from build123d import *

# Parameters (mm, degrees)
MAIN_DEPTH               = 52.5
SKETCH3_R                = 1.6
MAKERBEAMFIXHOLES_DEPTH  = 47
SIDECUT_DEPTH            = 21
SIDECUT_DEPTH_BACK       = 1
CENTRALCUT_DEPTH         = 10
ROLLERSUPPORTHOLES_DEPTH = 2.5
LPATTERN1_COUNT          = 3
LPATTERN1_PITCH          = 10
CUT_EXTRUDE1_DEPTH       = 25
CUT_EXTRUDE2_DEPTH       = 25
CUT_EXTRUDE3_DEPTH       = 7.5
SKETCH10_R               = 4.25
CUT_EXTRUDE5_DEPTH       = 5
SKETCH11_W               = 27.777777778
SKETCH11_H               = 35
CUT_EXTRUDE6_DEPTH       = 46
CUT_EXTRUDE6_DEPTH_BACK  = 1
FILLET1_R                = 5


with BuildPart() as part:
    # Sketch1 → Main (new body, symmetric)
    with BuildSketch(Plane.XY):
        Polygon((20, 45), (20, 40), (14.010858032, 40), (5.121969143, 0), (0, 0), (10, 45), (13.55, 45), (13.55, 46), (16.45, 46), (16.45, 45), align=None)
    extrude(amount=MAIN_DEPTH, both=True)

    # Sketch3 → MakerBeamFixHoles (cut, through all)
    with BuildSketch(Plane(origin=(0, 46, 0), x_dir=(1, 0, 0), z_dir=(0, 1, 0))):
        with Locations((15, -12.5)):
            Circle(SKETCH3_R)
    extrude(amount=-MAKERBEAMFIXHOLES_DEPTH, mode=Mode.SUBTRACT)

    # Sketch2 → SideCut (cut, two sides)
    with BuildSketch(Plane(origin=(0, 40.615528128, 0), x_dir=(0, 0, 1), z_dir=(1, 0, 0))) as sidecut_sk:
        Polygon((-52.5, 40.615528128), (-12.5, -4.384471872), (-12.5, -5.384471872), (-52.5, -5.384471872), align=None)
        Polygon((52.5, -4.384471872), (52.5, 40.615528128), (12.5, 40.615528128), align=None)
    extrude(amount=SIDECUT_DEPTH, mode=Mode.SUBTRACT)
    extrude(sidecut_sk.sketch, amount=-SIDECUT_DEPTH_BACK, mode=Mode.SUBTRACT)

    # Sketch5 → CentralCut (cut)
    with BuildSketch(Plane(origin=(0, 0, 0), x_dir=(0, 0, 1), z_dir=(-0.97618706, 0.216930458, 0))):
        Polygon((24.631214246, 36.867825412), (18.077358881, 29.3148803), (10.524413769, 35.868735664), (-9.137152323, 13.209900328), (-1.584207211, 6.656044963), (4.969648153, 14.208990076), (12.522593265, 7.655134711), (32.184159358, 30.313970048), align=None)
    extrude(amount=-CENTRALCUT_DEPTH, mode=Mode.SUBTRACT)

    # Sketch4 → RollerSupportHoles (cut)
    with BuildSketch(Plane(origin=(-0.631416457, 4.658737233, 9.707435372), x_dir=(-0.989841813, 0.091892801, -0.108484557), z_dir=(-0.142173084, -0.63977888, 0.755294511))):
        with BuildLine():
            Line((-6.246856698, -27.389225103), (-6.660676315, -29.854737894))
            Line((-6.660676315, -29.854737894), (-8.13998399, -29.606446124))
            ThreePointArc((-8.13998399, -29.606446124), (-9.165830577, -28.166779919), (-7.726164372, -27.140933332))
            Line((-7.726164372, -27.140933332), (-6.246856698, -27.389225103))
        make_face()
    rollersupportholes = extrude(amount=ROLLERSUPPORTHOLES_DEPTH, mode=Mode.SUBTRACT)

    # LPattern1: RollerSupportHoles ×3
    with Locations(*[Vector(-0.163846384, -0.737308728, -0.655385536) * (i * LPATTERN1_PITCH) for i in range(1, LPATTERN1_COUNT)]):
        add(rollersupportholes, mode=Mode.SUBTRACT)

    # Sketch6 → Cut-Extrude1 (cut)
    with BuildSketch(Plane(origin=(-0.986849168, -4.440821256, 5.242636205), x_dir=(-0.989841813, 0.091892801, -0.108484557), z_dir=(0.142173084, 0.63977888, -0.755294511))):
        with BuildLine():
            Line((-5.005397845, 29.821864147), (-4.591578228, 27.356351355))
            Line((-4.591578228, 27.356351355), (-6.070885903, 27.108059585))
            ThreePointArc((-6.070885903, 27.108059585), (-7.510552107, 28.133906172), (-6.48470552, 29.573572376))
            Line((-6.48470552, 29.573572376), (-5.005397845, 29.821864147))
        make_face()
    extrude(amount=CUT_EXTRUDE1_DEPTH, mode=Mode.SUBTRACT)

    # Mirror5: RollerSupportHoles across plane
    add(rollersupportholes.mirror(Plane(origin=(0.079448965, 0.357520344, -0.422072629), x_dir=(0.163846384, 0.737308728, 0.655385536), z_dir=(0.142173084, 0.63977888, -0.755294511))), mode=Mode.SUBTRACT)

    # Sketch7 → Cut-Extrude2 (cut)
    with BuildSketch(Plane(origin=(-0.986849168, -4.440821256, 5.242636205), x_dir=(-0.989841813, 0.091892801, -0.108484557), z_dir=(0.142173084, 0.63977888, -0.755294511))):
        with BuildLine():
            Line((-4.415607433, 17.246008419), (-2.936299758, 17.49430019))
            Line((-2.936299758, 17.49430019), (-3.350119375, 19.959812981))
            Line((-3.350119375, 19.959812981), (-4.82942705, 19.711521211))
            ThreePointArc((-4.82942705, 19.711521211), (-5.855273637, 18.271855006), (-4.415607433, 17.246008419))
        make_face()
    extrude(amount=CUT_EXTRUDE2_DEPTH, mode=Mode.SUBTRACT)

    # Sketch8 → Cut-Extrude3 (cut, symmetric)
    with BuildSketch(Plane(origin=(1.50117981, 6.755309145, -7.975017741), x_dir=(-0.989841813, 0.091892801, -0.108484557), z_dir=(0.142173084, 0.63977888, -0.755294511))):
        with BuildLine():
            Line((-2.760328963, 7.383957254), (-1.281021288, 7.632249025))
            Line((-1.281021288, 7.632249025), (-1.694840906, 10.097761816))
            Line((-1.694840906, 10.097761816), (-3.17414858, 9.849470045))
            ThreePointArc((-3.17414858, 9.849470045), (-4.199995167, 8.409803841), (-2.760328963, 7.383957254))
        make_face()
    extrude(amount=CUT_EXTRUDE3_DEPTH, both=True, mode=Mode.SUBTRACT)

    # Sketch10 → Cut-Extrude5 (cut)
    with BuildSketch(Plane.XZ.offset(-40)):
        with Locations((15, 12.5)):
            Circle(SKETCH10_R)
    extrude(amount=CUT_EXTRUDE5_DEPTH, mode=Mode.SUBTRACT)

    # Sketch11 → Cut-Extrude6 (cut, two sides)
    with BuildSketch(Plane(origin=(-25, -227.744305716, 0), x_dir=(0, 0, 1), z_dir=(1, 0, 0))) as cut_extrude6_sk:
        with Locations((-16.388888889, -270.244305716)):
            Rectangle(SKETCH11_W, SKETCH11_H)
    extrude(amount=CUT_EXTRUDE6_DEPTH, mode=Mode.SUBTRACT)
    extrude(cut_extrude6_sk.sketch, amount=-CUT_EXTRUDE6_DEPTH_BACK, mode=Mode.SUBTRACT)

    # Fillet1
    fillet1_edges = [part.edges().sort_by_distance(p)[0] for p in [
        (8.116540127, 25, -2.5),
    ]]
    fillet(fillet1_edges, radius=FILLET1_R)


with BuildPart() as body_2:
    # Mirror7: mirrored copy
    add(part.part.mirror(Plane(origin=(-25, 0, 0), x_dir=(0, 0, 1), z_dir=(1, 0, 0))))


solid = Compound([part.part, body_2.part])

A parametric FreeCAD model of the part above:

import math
import FreeCAD as App
import Part
import Sketcher
from FreeCAD import Vector


def edges_at(feature, points):
    """Names of the edges that pass closest to the given points."""
    edges = feature.Shape.Edges
    near = lambda p: min(range(len(edges)), key=lambda i: edges[i].distToShape(Part.Vertex(*p))[0])
    return sorted({f"Edge{near(p) + 1}" for p in points})


def add_polygon(sketch, points):
    """Adds a closed chain of lines whose ends are joined by coincident constraints."""
    first, n = sketch.GeometryCount, len(points)
    for a, b in zip(points, points[1:] + points[:1]):
        sketch.addGeometry(Part.LineSegment(App.Vector(*a, 0), App.Vector(*b, 0)), False)
    for i in range(n):
        sketch.addConstraint(Sketcher.Constraint("Coincident", first + i, 2, first + (i + 1) % n, 1))

doc = App.newDocument("Part")
body = doc.addObject("PartDesign::Body", "Body")

# Sketch on XY plane
sketch1 = body.newObject("Sketcher::SketchObject", "Sketch")
sketch1.AttachmentSupport = (doc.getObject("XY_Plane"), [""])
sketch1.MapMode = "FlatFace"
add_polygon(sketch1, [(20, 40), (20, 45), (16.4, 45), (16.4, 46), (13.6, 46), (13.6, 45), (10, 45), (0, 0), (5.1, 0), (14, 40)])  # lines 0-9
sketch1.addConstraint([
    Sketcher.Constraint("Vertical", 0),
    Sketcher.Constraint("Horizontal", 1),
    Sketcher.Constraint("Vertical", 2),
    Sketcher.Constraint("Horizontal", 3),
    Sketcher.Constraint("Vertical", 4),
    Sketcher.Constraint("Horizontal", 5),
    Sketcher.Constraint("Horizontal", 7),
    Sketcher.Constraint("Horizontal", 9),
    Sketcher.Constraint("Coincident", 6, 2, -1, 1),
    Sketcher.Constraint("Parallel", 6, 8),
    Sketcher.Constraint("Horizontal", 1, 2, 4, 2),
    Sketcher.Constraint("Equal", 1, 5),
    Sketcher.Constraint("DistanceY", 0, 1, 0, 2, 5.0),
    Sketcher.Constraint("DistanceY", 2, 1, 2, 2, 1.0),
    Sketcher.Constraint("DistanceX", 3, 2, 3, 1, 2.9),
    Sketcher.Constraint("DistanceX", -1, 1, 0, 2, 20.0),
    Sketcher.Constraint("DistanceY", -1, 1, 0, 2, 45.0),
    Sketcher.Constraint("DistanceX", -1, 1, 5, 2, 10.0),
    Sketcher.Constraint("DistanceX", 7, 1, 7, 2, 5.121969),
])
pad1 = body.newObject("PartDesign::Pad", "Pad")
pad1.Profile = sketch1
pad1.Length = 105
pad1.Midplane = True

# Sketch on XZ plane
sketch2 = body.newObject("Sketcher::SketchObject", "Sketch001")
sketch2.AttachmentSupport = (doc.getObject("XZ_Plane"), [""])
sketch2.MapMode = "FlatFace"
sketch2.AttachmentOffset = App.Placement(Vector(0, 0, -46), App.Rotation())
sketch2.addGeometry(Part.Circle(Vector(15, 12.5, 0), Vector(0, 0, 1), 1.6), False)
sketch2.addConstraint([
    Sketcher.Constraint("Diameter", 0, 3.2),
    Sketcher.Constraint("DistanceX", -1, 1, 0, 3, 15.0),
    Sketcher.Constraint("DistanceY", -1, 1, 0, 3, 12.5),
])
pocket1 = body.newObject("PartDesign::Pocket", "Pocket")
pocket1.Profile = sketch2
pocket1.Type = "ThroughAll"
pocket1.Reversed = True

# Sketch on YZ plane
sketch3 = body.newObject("Sketcher::SketchObject", "Sketch002")
sketch3.AttachmentSupport = (doc.getObject("YZ_Plane"), [""])
sketch3.MapMode = "FlatFace"
add_polygon(sketch3, [(45, -12.5), (0, -52.5), (46, -52.5), (46, -12.5)])  # lines 0-3
add_polygon(sketch3, [(45, 52.5), (0, 52.5), (0, 12.5)])  # lines 4-6
sketch3.addConstraint([
    Sketcher.Constraint("Horizontal", 1),
    Sketcher.Constraint("Vertical", 2),
    Sketcher.Constraint("Horizontal", 3),
    Sketcher.Constraint("Horizontal", 4),
    Sketcher.Constraint("Vertical", 5),
    Sketcher.Constraint("Symmetric", 0, 2, 4, 2, -1, 1),
    Sketcher.Constraint("PointOnObject", 0, 2, -2),
    Sketcher.Constraint("Parallel", 0, 6),
    Sketcher.Constraint("Vertical", 3, 2, 6, 2),
    Sketcher.Constraint("DistanceX", 1, 1, 1, 2, 46.0),
    Sketcher.Constraint("DistanceX", 3, 2, 3, 1, 1.0),
    Sketcher.Constraint("DistanceY", 2, 1, 2, 2, 40.0),
    Sketcher.Constraint("DistanceY", 3, 2, 4, 2, 65.0),
])
pocket2 = body.newObject("PartDesign::Pocket", "Pocket001")
pocket2.Profile = sketch3
pocket2.Type = "ThroughAll"
pocket2.Midplane = True

# Sketch on an angled plane
sketch4 = body.newObject("Sketcher::SketchObject", "Sketch003")
sketch4.Placement = App.Placement(Vector(0, 0, 0), App.Rotation(Vector(0, 0, 1), Vector(0.216930458, 0.97618706, 0), Vector(-0.97618706, 0.216930458, 0), "ZXY"))
add_polygon(sketch4, [(25, 37), (18, 29), (11, 36), (-9, 13), (-2, 7), (5, 14), (13, 8), (32, 30)])  # lines 0-7
sketch4.addConstraint([
    Sketcher.Constraint("Perpendicular", 0, 1),
    Sketcher.Constraint("Perpendicular", 1, 2),
    Sketcher.Constraint("Perpendicular", 2, 3),
    Sketcher.Constraint("Perpendicular", 3, 4),
    Sketcher.Constraint("Perpendicular", 4, 5),
    Sketcher.Constraint("Perpendicular", 5, 6),
    Sketcher.Constraint("Perpendicular", 6, 7),
    Sketcher.Constraint("Equal", 0, 1),
    Sketcher.Constraint("Equal", 1, 3),
    Sketcher.Constraint("Equal", 3, 4),
    Sketcher.Constraint("Equal", 4, 5),
    Sketcher.Constraint("Distance", 0, 10.0),
    Sketcher.Constraint("Distance", 2, 30.0),
    Sketcher.Constraint("DistanceY", -1, 1, 2, 2, 13.2099),
    Sketcher.Constraint("DistanceX", 2, 2, 4, 2, 14.1068),
    Sketcher.Constraint("DistanceX", -1, 1, 0, 2, 18.077359),
])
pocket3 = body.newObject("PartDesign::Pocket", "Pocket002")
pocket3.Profile = sketch4
pocket3.Length = 10

# Sketch on an angled plane
sketch5 = body.newObject("Sketcher::SketchObject", "Sketch004")
sketch5.Placement = App.Placement(Vector(-0.631416, 4.658737, 9.707435), App.Rotation(Vector(-0.989841813, 0.091892801, -0.108484557), Vector(0, -0.763045672, -0.646344569), Vector(-0.142173084, -0.63977888, 0.755294511), "ZXY"))
sketch5.addGeometry([
    Part.LineSegment(Vector(-6.7, -29.9, 0), Vector(-6.2, -27.4, 0)),
    Part.LineSegment(Vector(-6.2, -27.4, 0), Vector(-7.7, -27.1, 0)),
    Part.ArcOfCircle(Part.Circle(Vector(-7.9, -28.4, 0), Vector(0, 0, 1), 1.2), math.radians(80), math.radians(260)),
    Part.LineSegment(Vector(-8.1, -29.6, 0), Vector(-6.7, -29.9, 0)),
], False)
sketch5.addConstraint([
    Sketcher.Constraint("Coincident", 0, 2, 1, 1),
    Sketcher.Constraint("Tangent", 1, 2, 2, 1),
    Sketcher.Constraint("Tangent", 2, 2, 3, 1),
    Sketcher.Constraint("Coincident", 3, 2, 0, 1),
    Sketcher.Constraint("Perpendicular", 0, 1),
    Sketcher.Constraint("Parallel", 1, 3),
    Sketcher.Constraint("Radius", 2, 1.25),
    Sketcher.Constraint("Distance", 1, 1.5),
    Sketcher.Constraint("DistanceY", 2, 3, -1, 1, 28.37369),
    Sketcher.Constraint("DistanceX", 2, 3, 1, 2, 0.20691),
    Sketcher.Constraint("DistanceX", 2, 3, -1, 1, 7.933074),
])
pocket4 = body.newObject("PartDesign::Pocket", "Pocket003")
pocket4.Profile = sketch5
pocket4.Length = 2.5
pocket4.Reversed = True
doc.recompute()

datumline = body.newObject("PartDesign::Line", "DatumLine")
datumline.Placement = App.Placement(Vector(0, 0, 0), App.Rotation(Vector(0, 0, 1), Vector(-0.163846384, -0.737308728, -0.655385536)))
linearpattern = body.newObject("PartDesign::LinearPattern", "LinearPattern")
linearpattern.Originals = [pocket4]
linearpattern.Direction = (datumline, [""])
linearpattern.Mode = "offset"
linearpattern.Offset = 10
linearpattern.Occurrences = 3
body.Tip = linearpattern

# Sketch on an angled plane
sketch6 = body.newObject("Sketcher::SketchObject", "Sketch005")
sketch6.Placement = App.Placement(Vector(-0.986849, -4.440821, 5.242636), App.Rotation(Vector(-0.989841813, 0.091892801, -0.108484557), Vector(0, 0.763045672, 0.646344569), Vector(0.142173084, 0.63977888, -0.755294511), "ZXY"))
sketch6.addGeometry([
    Part.LineSegment(Vector(-4.6, 27.4, 0), Vector(-5, 29.8, 0)),
    Part.LineSegment(Vector(-5, 29.8, 0), Vector(-6.5, 29.6, 0)),
    Part.ArcOfCircle(Part.Circle(Vector(-6.3, 28.3, 0), Vector(0, 0, 1), 1.2), math.radians(100), math.radians(280)),
    Part.LineSegment(Vector(-6.1, 27.1, 0), Vector(-4.6, 27.4, 0)),
], False)
sketch6.addConstraint([
    Sketcher.Constraint("Coincident", 0, 2, 1, 1),
    Sketcher.Constraint("Tangent", 1, 2, 2, 1),
    Sketcher.Constraint("Tangent", 2, 2, 3, 1),
    Sketcher.Constraint("Coincident", 3, 2, 0, 1),
    Sketcher.Constraint("Perpendicular", 0, 1),
    Sketcher.Constraint("Parallel", 1, 3),
    Sketcher.Constraint("Radius", 2, 1.25),
    Sketcher.Constraint("Distance", 1, 1.5),
    Sketcher.Constraint("DistanceY", -1, 1, 2, 2, 27.10806),
    Sketcher.Constraint("DistanceX", 3, 2, -1, 1, 4.591578),
    Sketcher.Constraint("DistanceY", -1, 1, 3, 2, 27.356351),
])
pocket5 = body.newObject("PartDesign::Pocket", "Pocket004")
pocket5.Profile = sketch6
pocket5.Length = 25
pocket5.Reversed = True
doc.recompute()

datumplane = body.newObject("PartDesign::Plane", "DatumPlane")
datumplane.Placement = App.Placement(Vector(0.079449, 0.35752, -0.422073), App.Rotation(Vector(0, -0.763045672, -0.646344569), Vector(-0.989841812, 0.091892801, -0.108484556), Vector(0.142173084, 0.63977888, -0.755294511), "ZXY"))
mirrored = body.newObject("PartDesign::Mirrored", "Mirrored")
mirrored.Originals = [pocket4]
mirrored.MirrorPlane = (datumplane, [""])
body.Tip = mirrored

# Sketch on an angled plane
sketch7 = body.newObject("Sketcher::SketchObject", "Sketch006")
sketch7.Placement = App.Placement(Vector(-0.986849, -4.440821, 5.242636), App.Rotation(Vector(-0.989841813, 0.091892801, -0.108484557), Vector(0, 0.763045672, 0.646344569), Vector(0.142173084, 0.63977888, -0.755294511), "ZXY"))
sketch7.addGeometry([
    Part.LineSegment(Vector(-4.4, 17.2, 0), Vector(-2.9, 17.5, 0)),
    Part.LineSegment(Vector(-2.9, 17.5, 0), Vector(-3.4, 20, 0)),
    Part.LineSegment(Vector(-3.4, 20, 0), Vector(-4.8, 19.7, 0)),
    Part.ArcOfCircle(Part.Circle(Vector(-4.6, 18.5, 0), Vector(0, 0, 1), 1.2), math.radians(100), math.radians(280)),
], False)
sketch7.addConstraint([
    Sketcher.Constraint("Coincident", 0, 2, 1, 1),
    Sketcher.Constraint("Coincident", 1, 2, 2, 1),
    Sketcher.Constraint("Tangent", 2, 2, 3, 1),
    Sketcher.Constraint("Tangent", 3, 2, 0, 1),
    Sketcher.Constraint("Perpendicular", 0, 1),
    Sketcher.Constraint("Perpendicular", 1, 2),
    Sketcher.Constraint("Radius", 3, 1.25),
    Sketcher.Constraint("Distance", 0, 1.5),
    Sketcher.Constraint("DistanceX", 0, 2, -1, 1, 2.9363),
    Sketcher.Constraint("DistanceY", -1, 1, 0, 2, 17.4943),
    Sketcher.Constraint("DistanceX", 1, 2, -1, 1, 3.350119),
])
pocket6 = body.newObject("PartDesign::Pocket", "Pocket005")
pocket6.Profile = sketch7
pocket6.Length = 25
pocket6.Reversed = True

# Sketch on an angled plane
sketch8 = body.newObject("Sketcher::SketchObject", "Sketch007")
sketch8.Placement = App.Placement(Vector(1.50118, 6.755309, -7.975018), App.Rotation(Vector(-0.989841813, 0.091892801, -0.108484557), Vector(0, 0.763045672, 0.646344569), Vector(0.142173084, 0.63977888, -0.755294511), "ZXY"))
sketch8.addGeometry([
    Part.LineSegment(Vector(-2.8, 7.4, 0), Vector(-1.3, 7.6, 0)),
    Part.LineSegment(Vector(-1.3, 7.6, 0), Vector(-1.7, 10.1, 0)),
    Part.LineSegment(Vector(-1.7, 10.1, 0), Vector(-3.2, 9.8, 0)),
    Part.ArcOfCircle(Part.Circle(Vector(-3, 8.6, 0), Vector(0, 0, 1), 1.2), math.radians(100), math.radians(280)),
], False)
sketch8.addConstraint([
    Sketcher.Constraint("Coincident", 0, 2, 1, 1),
    Sketcher.Constraint("Coincident", 1, 2, 2, 1),
    Sketcher.Constraint("Tangent", 2, 2, 3, 1),
    Sketcher.Constraint("Tangent", 3, 2, 0, 1),
    Sketcher.Constraint("Perpendicular", 0, 1),
    Sketcher.Constraint("Perpendicular", 1, 2),
    Sketcher.Constraint("Radius", 3, 1.25),
    Sketcher.Constraint("Distance", 0, 1.5),
    Sketcher.Constraint("DistanceX", 3, 3, -1, 1, 2.967239),
    Sketcher.Constraint("DistanceX", 0, 2, -1, 1, 1.281021),
    Sketcher.Constraint("DistanceY", -1, 1, 0, 2, 7.632249),
])
pocket7 = body.newObject("PartDesign::Pocket", "Pocket006")
pocket7.Profile = sketch8
pocket7.Length = 15
pocket7.Midplane = True

# Sketch on XZ plane
sketch9 = body.newObject("Sketcher::SketchObject", "Sketch008")
sketch9.AttachmentSupport = (doc.getObject("XZ_Plane"), [""])
sketch9.MapMode = "FlatFace"
sketch9.AttachmentOffset = App.Placement(Vector(0, 0, -40), App.Rotation())
sketch9.addGeometry(Part.Circle(Vector(15, 12.5, 0), Vector(0, 0, 1), 4.2), False)
sketch9.addConstraint([
    Sketcher.Constraint("Diameter", 0, 8.5),
    Sketcher.Constraint("DistanceX", -1, 1, 0, 3, 15.0),
    Sketcher.Constraint("DistanceY", -1, 1, 0, 3, 12.5),
])
pocket8 = body.newObject("PartDesign::Pocket", "Pocket007")
pocket8.Profile = sketch9
pocket8.Length = 5
pocket8.Reversed = True

# Sketch on YZ plane
sketch10 = body.newObject("Sketcher::SketchObject", "Sketch009")
sketch10.AttachmentSupport = (doc.getObject("YZ_Plane"), [""])
sketch10.MapMode = "FlatFace"
sketch10.AttachmentOffset = App.Placement(Vector(0, 0, -25), App.Rotation())
add_polygon(sketch10, [(25, -30), (60, -30), (60, -2), (25, -2)])  # lines 0-3
sketch10.addConstraint([
    Sketcher.Constraint("Horizontal", 0),
    Sketcher.Constraint("Vertical", 1),
    Sketcher.Constraint("Horizontal", 2),
    Sketcher.Constraint("Vertical", 3),
    Sketcher.Constraint("DistanceX", 0, 1, 0, 2, 35.0),
    Sketcher.Constraint("DistanceX", -1, 1, 0, 2, 60.0),
    Sketcher.Constraint("DistanceY", 1, 2, -1, 1, 2.5),
    Sketcher.Constraint("DistanceY", 1, 1, 1, 2, 27.777778),
])
pocket9 = body.newObject("PartDesign::Pocket", "Pocket008")
pocket9.Profile = sketch10
pocket9.Type = "ThroughAll"
pocket9.Midplane = True
doc.recompute()

fillet = body.newObject("PartDesign::Fillet", "Fillet")
fillet.Base = (pocket9, edges_at(pocket9, [(8.117, 25, -2.5)]))
fillet.Radius = 5
body2 = doc.addObject("PartDesign::Body", "Body001")
doc.recompute()

mirroring = doc.addObject("Part::Mirroring", "Mirroring")
mirroring.Source = body
mirroring.Base = Vector(-25, 0, 0)
mirroring.Normal = Vector(1, 0, 0)
body2.BaseFeature = mirroring
doc.recompute()
mirroring.Visibility = False

doc.recompute()
